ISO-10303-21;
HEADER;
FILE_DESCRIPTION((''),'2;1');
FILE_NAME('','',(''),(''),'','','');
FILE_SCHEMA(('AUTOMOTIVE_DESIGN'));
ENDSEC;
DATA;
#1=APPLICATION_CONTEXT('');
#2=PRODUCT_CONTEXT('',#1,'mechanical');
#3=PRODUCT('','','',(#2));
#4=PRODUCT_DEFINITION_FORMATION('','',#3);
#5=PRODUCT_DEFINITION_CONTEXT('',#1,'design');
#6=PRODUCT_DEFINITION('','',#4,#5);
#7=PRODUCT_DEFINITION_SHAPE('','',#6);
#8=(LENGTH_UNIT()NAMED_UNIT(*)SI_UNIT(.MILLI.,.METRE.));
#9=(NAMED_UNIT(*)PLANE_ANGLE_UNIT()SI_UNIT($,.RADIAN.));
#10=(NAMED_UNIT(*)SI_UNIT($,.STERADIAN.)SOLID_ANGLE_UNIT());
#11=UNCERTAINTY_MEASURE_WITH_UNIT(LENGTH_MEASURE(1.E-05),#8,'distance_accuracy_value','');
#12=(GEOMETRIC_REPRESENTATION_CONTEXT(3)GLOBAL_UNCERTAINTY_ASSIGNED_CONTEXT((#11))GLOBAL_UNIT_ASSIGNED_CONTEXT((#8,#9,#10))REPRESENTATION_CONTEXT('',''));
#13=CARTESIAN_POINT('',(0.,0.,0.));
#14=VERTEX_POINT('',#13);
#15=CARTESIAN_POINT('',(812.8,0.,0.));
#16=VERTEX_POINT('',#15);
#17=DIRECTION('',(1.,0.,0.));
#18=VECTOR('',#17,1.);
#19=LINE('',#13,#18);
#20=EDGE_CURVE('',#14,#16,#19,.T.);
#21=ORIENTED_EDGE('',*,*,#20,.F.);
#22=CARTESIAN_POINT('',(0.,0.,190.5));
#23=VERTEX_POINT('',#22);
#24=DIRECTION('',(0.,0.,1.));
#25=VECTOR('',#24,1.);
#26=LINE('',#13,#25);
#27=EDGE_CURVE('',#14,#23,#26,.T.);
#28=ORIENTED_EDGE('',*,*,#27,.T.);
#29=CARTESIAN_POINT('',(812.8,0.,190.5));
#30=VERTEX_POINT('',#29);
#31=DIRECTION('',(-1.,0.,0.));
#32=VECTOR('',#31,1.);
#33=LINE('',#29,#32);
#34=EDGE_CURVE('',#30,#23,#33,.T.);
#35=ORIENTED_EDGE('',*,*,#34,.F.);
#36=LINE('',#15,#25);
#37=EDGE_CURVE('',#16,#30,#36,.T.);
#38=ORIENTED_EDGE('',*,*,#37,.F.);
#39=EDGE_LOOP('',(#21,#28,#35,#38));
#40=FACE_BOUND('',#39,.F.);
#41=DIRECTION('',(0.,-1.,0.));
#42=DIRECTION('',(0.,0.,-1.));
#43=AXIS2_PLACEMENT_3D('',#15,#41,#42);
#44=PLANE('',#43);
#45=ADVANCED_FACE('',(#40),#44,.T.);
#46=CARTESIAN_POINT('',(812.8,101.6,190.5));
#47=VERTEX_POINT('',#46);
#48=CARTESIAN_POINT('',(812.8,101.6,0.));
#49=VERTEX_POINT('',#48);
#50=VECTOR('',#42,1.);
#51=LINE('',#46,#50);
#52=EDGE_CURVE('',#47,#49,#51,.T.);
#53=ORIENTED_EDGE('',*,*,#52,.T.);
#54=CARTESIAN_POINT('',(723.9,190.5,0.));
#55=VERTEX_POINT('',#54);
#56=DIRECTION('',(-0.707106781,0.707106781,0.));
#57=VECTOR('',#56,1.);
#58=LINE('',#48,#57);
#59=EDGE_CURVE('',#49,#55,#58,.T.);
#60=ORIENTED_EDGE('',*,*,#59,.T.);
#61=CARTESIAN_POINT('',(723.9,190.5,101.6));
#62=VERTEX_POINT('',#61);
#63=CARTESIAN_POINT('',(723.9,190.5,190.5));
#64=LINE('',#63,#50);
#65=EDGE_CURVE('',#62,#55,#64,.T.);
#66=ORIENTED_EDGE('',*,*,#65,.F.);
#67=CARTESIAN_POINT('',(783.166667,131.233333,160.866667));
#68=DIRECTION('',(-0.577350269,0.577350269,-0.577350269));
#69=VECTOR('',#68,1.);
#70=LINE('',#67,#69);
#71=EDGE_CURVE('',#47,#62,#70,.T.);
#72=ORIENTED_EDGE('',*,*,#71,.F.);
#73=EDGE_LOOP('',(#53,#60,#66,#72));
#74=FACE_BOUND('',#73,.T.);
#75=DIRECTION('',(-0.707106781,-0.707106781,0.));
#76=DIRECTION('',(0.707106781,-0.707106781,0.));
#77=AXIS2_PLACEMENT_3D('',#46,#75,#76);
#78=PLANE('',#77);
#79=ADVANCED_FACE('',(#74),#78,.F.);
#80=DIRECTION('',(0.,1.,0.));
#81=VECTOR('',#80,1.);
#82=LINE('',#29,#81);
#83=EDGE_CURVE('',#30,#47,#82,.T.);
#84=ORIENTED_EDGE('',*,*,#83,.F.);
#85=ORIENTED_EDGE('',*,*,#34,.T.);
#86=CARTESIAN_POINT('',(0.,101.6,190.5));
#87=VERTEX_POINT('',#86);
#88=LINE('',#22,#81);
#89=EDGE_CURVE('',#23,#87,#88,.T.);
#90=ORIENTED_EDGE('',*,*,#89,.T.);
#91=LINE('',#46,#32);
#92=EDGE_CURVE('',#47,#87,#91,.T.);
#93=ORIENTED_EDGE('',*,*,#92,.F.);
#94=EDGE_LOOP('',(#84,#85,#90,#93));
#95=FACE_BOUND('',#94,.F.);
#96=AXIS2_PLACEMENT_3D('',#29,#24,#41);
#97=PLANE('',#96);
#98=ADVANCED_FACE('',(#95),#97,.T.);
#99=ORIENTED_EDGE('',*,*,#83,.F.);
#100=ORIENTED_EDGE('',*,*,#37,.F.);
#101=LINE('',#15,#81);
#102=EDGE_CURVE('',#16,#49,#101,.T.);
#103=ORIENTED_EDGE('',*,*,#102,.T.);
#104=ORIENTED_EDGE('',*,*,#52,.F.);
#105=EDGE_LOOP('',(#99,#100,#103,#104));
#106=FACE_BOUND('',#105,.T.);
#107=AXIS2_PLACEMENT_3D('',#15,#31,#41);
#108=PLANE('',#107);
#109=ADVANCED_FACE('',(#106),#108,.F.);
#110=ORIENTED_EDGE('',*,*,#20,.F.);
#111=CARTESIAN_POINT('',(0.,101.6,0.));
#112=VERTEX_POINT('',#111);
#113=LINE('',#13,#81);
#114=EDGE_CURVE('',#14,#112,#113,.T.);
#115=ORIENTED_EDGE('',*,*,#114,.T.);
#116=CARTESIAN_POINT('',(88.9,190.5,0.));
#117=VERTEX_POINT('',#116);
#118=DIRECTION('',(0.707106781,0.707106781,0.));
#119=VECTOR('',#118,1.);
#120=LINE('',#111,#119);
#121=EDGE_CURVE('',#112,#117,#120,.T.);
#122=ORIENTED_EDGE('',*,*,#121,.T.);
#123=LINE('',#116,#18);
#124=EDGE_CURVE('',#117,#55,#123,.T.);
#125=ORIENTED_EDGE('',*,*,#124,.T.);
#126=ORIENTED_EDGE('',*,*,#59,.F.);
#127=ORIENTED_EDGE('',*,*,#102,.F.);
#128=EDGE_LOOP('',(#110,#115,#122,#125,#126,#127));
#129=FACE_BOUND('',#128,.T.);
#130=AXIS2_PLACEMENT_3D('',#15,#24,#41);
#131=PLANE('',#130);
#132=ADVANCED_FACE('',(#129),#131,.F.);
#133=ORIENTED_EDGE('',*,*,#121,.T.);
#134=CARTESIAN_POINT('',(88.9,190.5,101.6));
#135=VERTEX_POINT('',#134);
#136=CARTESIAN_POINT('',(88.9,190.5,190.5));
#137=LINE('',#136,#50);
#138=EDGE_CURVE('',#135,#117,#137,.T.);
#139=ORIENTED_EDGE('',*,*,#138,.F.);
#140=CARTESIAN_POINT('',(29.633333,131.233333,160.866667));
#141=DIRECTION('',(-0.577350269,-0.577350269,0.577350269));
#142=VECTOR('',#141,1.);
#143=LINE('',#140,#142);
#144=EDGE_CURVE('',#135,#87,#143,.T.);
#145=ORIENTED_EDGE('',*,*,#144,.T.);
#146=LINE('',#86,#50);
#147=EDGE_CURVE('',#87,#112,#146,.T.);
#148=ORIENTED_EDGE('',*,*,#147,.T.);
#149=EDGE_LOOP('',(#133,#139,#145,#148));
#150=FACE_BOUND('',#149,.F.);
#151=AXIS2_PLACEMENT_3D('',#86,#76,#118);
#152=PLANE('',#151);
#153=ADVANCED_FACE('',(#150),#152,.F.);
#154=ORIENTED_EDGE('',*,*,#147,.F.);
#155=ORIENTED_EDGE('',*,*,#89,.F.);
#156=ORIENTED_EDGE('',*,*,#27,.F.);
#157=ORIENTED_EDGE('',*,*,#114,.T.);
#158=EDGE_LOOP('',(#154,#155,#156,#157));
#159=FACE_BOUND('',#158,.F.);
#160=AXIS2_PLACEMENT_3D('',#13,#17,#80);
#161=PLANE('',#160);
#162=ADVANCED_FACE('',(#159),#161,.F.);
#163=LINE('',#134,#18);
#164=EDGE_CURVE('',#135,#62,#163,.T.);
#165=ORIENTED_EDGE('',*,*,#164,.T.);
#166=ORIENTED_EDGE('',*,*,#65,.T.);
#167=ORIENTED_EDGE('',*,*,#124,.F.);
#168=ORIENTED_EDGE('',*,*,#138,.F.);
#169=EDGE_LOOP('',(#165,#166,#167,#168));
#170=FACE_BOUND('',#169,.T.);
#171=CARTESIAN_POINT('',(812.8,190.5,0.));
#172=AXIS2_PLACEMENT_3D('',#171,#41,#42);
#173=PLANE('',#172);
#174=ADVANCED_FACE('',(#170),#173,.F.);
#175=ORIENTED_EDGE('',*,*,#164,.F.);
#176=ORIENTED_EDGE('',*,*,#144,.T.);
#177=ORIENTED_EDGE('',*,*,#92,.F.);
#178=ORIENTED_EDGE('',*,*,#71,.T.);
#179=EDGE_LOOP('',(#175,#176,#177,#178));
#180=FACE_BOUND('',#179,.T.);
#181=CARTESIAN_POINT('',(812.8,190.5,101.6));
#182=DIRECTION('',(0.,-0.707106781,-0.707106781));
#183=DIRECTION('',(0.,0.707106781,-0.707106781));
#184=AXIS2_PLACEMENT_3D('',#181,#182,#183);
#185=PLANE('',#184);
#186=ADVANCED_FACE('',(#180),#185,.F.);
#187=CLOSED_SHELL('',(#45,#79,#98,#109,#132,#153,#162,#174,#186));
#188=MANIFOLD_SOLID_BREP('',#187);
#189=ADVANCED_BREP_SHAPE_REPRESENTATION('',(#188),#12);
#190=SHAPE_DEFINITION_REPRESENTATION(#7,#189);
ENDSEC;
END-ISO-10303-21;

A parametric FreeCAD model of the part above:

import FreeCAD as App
import Part
import Sketcher
from FreeCAD import Vector
Q = App.Units.Quantity

doc = App.newDocument("Part")
body = doc.addObject("PartDesign::Body", "Body")

# Sketch on YZ plane
sketch1 = body.newObject("Sketcher::SketchObject", "Sketch")
sketch1.AttachmentSupport = (doc.getObject("YZ_Plane"), [""])
sketch1.MapMode = "FlatFace"
sketch1.addGeometry([
    Part.LineSegment(Vector(0, 190, 0), Vector(0, 0, 0)),  # 0
    Part.LineSegment(Vector(0, 0, 0), Vector(190, 0, 0)),  # 1
    Part.LineSegment(Vector(190, 0, 0), Vector(190, 102, 0)),  # 2
    Part.LineSegment(Vector(190, 102, 0), Vector(102, 190, 0)),  # 3
    Part.LineSegment(Vector(102, 190, 0), Vector(0, 190, 0)),  # 4
], False)
sketch1.addConstraint([
    Sketcher.Constraint("Coincident", 0, 2, 1, 1),
    Sketcher.Constraint("Coincident", 1, 2, 2, 1),
    Sketcher.Constraint("Coincident", 2, 2, 3, 1),
    Sketcher.Constraint("Coincident", 3, 2, 4, 1),
    Sketcher.Constraint("Coincident", 4, 2, 0, 1),
    Sketcher.Constraint("Vertical", 0),
    Sketcher.Constraint("Horizontal", 1),
    Sketcher.Constraint("Vertical", 2),
    Sketcher.Constraint("Horizontal", 4),
    Sketcher.Constraint("Coincident", 0, 2, -1, 1),
    Sketcher.Constraint("Equal", 1, 0),
    Sketcher.Constraint("Equal", 4, 2),
    Sketcher.Constraint("DistanceX", 4, 2, 4, 1, Q("4 in")),
    Sketcher.Constraint("DistanceX", 1, 1, 1, 2, Q("7.5 in")),
])
pad1 = body.newObject("PartDesign::Pad", "Pad")
pad1.Profile = sketch1
pad1.Length = Q("16 in")

# Sketch on XY plane
sketch2 = body.newObject("Sketcher::SketchObject", "Sketch001")
sketch2.AttachmentSupport = (doc.getObject("XY_Plane"), [""])
sketch2.MapMode = "FlatFace"
sketch2.AttachmentOffset = App.Placement(Vector(0, 0, 7.5 * 25.4), App.Rotation())
sketch2.addGeometry([
    Part.LineSegment(Vector(0, 190, 0), Vector(0, 102, 0)),
    Part.LineSegment(Vector(0, 102, 0), Vector(89, 190, 0)),
    Part.LineSegment(Vector(89, 190, 0), Vector(0, 190, 0)),
], False)
sketch2.addConstraint([
    Sketcher.Constraint("Coincident", 0, 2, 1, 1),
    Sketcher.Constraint("Coincident", 1, 2, 2, 1),
    Sketcher.Constraint("Coincident", 2, 2, 0, 1),
    Sketcher.Constraint("Vertical", 0),
    Sketcher.Constraint("Horizontal", 2),
    Sketcher.Constraint("PointOnObject", 0, 2, -2),
    Sketcher.Constraint("Equal", 2, 0),
    Sketcher.Constraint("DistanceX", 2, 2, 2, 1, Q("3.5 in")),
    Sketcher.Constraint("DistanceY", -1, 1, 0, 2, Q("4 in")),
])
pocket1 = body.newObject("PartDesign::Pocket", "Pocket")
pocket1.Profile = sketch2
pocket1.Length = Q("7.5 in")
doc.recompute()

datumplane = body.newObject("PartDesign::Plane", "DatumPlane")
datumplane.AttachmentSupport = (doc.getObject("YZ_Plane"), [""])
datumplane.MapMode = "FlatFace"
datumplane.AttachmentOffset = App.Placement(Vector(0, 0, 16 * 25.4), App.Rotation())
mirrored = body.newObject("PartDesign::Mirrored", "Mirrored")
mirrored.Originals = [pad1, pocket1]
mirrored.MirrorPlane = (datumplane, [""])
body.Tip = mirrored

doc.recompute()
